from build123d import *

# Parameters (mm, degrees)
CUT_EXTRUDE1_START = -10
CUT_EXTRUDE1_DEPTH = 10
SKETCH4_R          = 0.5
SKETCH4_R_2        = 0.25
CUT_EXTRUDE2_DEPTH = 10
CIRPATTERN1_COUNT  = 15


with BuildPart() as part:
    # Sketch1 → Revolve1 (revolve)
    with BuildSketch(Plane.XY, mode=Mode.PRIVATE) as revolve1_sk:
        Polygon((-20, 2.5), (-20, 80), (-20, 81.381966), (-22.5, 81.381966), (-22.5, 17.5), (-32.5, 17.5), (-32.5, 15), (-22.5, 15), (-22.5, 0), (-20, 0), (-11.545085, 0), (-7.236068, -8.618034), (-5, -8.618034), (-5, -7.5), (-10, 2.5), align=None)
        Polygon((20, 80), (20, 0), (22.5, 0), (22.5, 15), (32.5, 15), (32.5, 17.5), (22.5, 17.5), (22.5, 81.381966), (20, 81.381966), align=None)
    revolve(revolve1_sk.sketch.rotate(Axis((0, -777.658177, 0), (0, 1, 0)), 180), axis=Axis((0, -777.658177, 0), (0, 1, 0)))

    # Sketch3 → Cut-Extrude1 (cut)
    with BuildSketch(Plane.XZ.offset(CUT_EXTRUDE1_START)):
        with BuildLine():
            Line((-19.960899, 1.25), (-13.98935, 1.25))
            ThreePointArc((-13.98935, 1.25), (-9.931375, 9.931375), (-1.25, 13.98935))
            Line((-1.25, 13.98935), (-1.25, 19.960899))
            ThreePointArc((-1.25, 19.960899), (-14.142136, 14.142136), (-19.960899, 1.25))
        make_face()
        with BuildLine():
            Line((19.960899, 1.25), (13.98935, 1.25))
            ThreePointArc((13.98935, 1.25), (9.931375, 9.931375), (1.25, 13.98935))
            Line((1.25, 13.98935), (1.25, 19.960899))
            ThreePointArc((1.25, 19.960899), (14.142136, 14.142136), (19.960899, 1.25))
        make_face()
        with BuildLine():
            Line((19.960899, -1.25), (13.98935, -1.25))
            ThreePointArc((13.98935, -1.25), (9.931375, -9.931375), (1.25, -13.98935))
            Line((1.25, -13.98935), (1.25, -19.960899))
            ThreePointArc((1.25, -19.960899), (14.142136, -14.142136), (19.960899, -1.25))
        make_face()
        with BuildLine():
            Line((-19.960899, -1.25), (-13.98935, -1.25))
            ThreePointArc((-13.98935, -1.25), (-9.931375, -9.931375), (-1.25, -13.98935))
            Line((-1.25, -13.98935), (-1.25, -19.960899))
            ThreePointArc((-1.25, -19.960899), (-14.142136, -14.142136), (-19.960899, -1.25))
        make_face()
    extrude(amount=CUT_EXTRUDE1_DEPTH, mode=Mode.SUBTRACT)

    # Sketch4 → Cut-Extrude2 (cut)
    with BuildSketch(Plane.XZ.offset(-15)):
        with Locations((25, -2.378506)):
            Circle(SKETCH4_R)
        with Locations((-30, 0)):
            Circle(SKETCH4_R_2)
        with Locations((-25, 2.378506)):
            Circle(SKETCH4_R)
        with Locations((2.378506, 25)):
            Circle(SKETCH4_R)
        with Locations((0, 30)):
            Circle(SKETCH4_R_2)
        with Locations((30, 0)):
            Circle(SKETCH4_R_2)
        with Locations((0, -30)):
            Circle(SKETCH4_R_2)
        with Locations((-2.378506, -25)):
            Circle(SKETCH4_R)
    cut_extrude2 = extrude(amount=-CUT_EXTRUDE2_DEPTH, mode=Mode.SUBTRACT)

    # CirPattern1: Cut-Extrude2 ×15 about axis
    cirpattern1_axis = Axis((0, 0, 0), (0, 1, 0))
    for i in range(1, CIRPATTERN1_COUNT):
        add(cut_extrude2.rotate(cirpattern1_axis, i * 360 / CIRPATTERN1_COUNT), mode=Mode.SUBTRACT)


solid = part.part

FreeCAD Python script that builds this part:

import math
import FreeCAD as App
import Part
import Sketcher
Q = App.Units.Quantity

doc = App.newDocument("Part")
body = doc.addObject("PartDesign::Body", "Body")

# Sketch on XY plane
sketch1 = doc.addObject("Sketcher::SketchObject", "Sketch")
body.addObject(sketch1)
sketch1.AttachmentSupport = (doc.XY_Plane, [""])
sketch1.MapMode = "FlatFace"
sketch1.addGeometry([
    Part.LineSegment(App.Vector(-20, 2.5, 0), App.Vector(-20, 81.4, 0)),  # 0
    Part.LineSegment(App.Vector(-20, 81.4, 0), App.Vector(-22.5, 81.4, 0)),  # 1
    Part.LineSegment(App.Vector(-22.5, 81.4, 0), App.Vector(-22.5, 17.5, 0)),  # 2
    Part.LineSegment(App.Vector(-22.5, 17.5, 0), App.Vector(-32.5, 17.5, 0)),  # 3
    Part.LineSegment(App.Vector(-32.5, 17.5, 0), App.Vector(-32.5, 15, 0)),  # 4
    Part.LineSegment(App.Vector(-32.5, 15, 0), App.Vector(-22.5, 15, 0)),  # 5
    Part.LineSegment(App.Vector(-22.5, 15, 0), App.Vector(-22.5, 0, 0)),  # 6
    Part.LineSegment(App.Vector(-22.5, 0, 0), App.Vector(-11.5, 0, 0)),  # 7
    Part.LineSegment(App.Vector(-11.5, 0, 0), App.Vector(-7.2, -8.6, 0)),  # 8
    Part.LineSegment(App.Vector(-7.2, -8.6, 0), App.Vector(-5, -8.6, 0)),  # 9
    Part.LineSegment(App.Vector(-5, -8.6, 0), App.Vector(-5, -7.5, 0)),  # 10
    Part.LineSegment(App.Vector(-5, -7.5, 0), App.Vector(-10, 2.5, 0)),  # 11
    Part.LineSegment(App.Vector(-10, 2.5, 0), App.Vector(-20, 2.5, 0)),  # 12
    Part.LineSegment(App.Vector(20, 0, 0), App.Vector(22.5, 0, 0)),  # 13
    Part.LineSegment(App.Vector(22.5, 0, 0), App.Vector(22.5, 15, 0)),  # 14
    Part.LineSegment(App.Vector(22.5, 15, 0), App.Vector(32.5, 15, 0)),  # 15
    Part.LineSegment(App.Vector(32.5, 15, 0), App.Vector(32.5, 17.5, 0)),  # 16
    Part.LineSegment(App.Vector(32.5, 17.5, 0), App.Vector(22.5, 17.5, 0)),  # 17
    Part.LineSegment(App.Vector(22.5, 17.5, 0), App.Vector(22.5, 81.4, 0)),  # 18
    Part.LineSegment(App.Vector(22.5, 81.4, 0), App.Vector(20, 81.4, 0)),  # 19
    Part.LineSegment(App.Vector(20, 81.4, 0), App.Vector(20, 0, 0)),  # 20
], False)
sketch1.addConstraint([
    Sketcher.Constraint("Coincident", 0, 2, 1, 1),
    Sketcher.Constraint("Coincident", 1, 2, 2, 1),
    Sketcher.Constraint("Coincident", 2, 2, 3, 1),
    Sketcher.Constraint("Coincident", 3, 2, 4, 1),
    Sketcher.Constraint("Coincident", 4, 2, 5, 1),
    Sketcher.Constraint("Coincident", 5, 2, 6, 1),
    Sketcher.Constraint("Coincident", 6, 2, 7, 1),
    Sketcher.Constraint("Coincident", 7, 2, 8, 1),
    Sketcher.Constraint("Coincident", 8, 2, 9, 1),
    Sketcher.Constraint("Coincident", 9, 2, 10, 1),
    Sketcher.Constraint("Coincident", 10, 2, 11, 1),
    Sketcher.Constraint("Coincident", 11, 2, 12, 1),
    Sketcher.Constraint("Coincident", 12, 2, 0, 1),
    Sketcher.Constraint("Coincident", 13, 2, 14, 1),
    Sketcher.Constraint("Coincident", 14, 2, 15, 1),
    Sketcher.Constraint("Coincident", 15, 2, 16, 1),
    Sketcher.Constraint("Coincident", 16, 2, 17, 1),
    Sketcher.Constraint("Coincident", 17, 2, 18, 1),
    Sketcher.Constraint("Coincident", 18, 2, 19, 1),
    Sketcher.Constraint("Coincident", 19, 2, 20, 1),
    Sketcher.Constraint("Coincident", 20, 2, 13, 1),
    Sketcher.Constraint("Vertical", 0),
    Sketcher.Constraint("Horizontal", 1),
    Sketcher.Constraint("Vertical", 2),
    Sketcher.Constraint("Horizontal", 3),
    Sketcher.Constraint("Vertical", 4),
    Sketcher.Constraint("Horizontal", 5),
    Sketcher.Constraint("Vertical", 6),
    Sketcher.Constraint("Horizontal", 7),
    Sketcher.Constraint("Horizontal", 9),
    Sketcher.Constraint("Vertical", 10),
    Sketcher.Constraint("Horizontal", 12),
    Sketcher.Constraint("Horizontal", 13),
    Sketcher.Constraint("Vertical", 14),
    Sketcher.Constraint("Horizontal", 15),
    Sketcher.Constraint("Vertical", 16),
    Sketcher.Constraint("Horizontal", 17),
    Sketcher.Constraint("Vertical", 18),
    Sketcher.Constraint("Horizontal", 19),
    Sketcher.Constraint("Vertical", 20),
    Sketcher.Constraint("Symmetric", 6, 2, 13, 2, -1, 1),
    Sketcher.Constraint("Symmetric", 4, 2, 15, 2, -2),
    Sketcher.Constraint("Symmetric", 2, 2, 17, 2, -2),
    Sketcher.Constraint("Symmetric", 0, 2, 19, 2, -2),
    Sketcher.Constraint("PointOnObject", 6, 2, -1),
    Sketcher.Constraint("Parallel", 8, 11),
    Sketcher.Constraint("Vertical", 2, 2, 5, 2),
    Sketcher.Constraint("Equal", 5, 12),
    Sketcher.Constraint("Equal", 19, 4),
    Sketcher.Constraint("DistanceX", 3, 2, 3, 1, Q("10 mm")),
    Sketcher.Constraint("DistanceY", 6, 2, 6, 1, Q("15 mm")),
    Sketcher.Constraint("DistanceX", 1, 2, 1, 1, Q("2.5 mm")),
    Sketcher.Constraint("DistanceX", 0, 2, -1, 1, Q("20 mm")),
    Sketcher.Constraint("DistanceX", 9, 2, -1, 1, Q("5 mm")),
    Sketcher.Constraint("DistanceY", 10, 2, 11, 2, Q("10 mm")),
    Sketcher.Constraint("DistanceY", 12, 2, 2, 2, Q("15 mm")),
    Sketcher.Constraint("DistanceX", 9, 1, 9, 2, Q("2.236068 mm")),
    Sketcher.Constraint("DistanceX", 7, 1, 7, 2, Q("10.954915 mm")),
    Sketcher.Constraint("DistanceY", 0, 1, 0, 2, Q("78.881966 mm")),
])
revolution = doc.addObject("PartDesign::Revolution", "Revolution")
body.addObject(revolution)
revolution.Profile = sketch1
revolution.ReferenceAxis = (sketch1, ["V_Axis"])
revolution.Angle = 360

# Sketch on XZ plane
sketch2 = doc.addObject("Sketcher::SketchObject", "Sketch001")
body.addObject(sketch2)
sketch2.AttachmentSupport = (doc.XZ_Plane, [""])
sketch2.MapMode = "FlatFace"
sketch2.AttachmentOffset = App.Placement(App.Vector(0, 0, -10), App.Rotation())
sketch2.addGeometry([
    Part.LineSegment(App.Vector(-20, 1, 0), App.Vector(-14, 1, 0)),  # 0
    Part.ArcOfCircle(Part.Circle(App.Vector(0, 0, 0), App.Vector(0, 0, 1), 14), math.radians(95), math.radians(175)),  # 1
    Part.LineSegment(App.Vector(-1, 14, 0), App.Vector(-1, 20, 0)),  # 2
    Part.ArcOfCircle(Part.Circle(App.Vector(0, 0, 0), App.Vector(0, 0, 1), 20), math.radians(94), math.radians(176)),  # 3
    Part.LineSegment(App.Vector(14, 1, 0), App.Vector(20, 1, 0)),  # 4
    Part.ArcOfCircle(Part.Circle(App.Vector(0, 0, 0), App.Vector(0, 0, 1), 20), math.radians(4), math.radians(86)),  # 5
    Part.LineSegment(App.Vector(1, 20, 0), App.Vector(1, 14, 0)),  # 6
    Part.ArcOfCircle(Part.Circle(App.Vector(0, 0, 0), App.Vector(0, 0, 1), 14), math.radians(5), math.radians(85)),  # 7
    Part.LineSegment(App.Vector(20, -1, 0), App.Vector(14, -1, 0)),  # 8
    Part.ArcOfCircle(Part.Circle(App.Vector(0, 0, 0), App.Vector(0, 0, 1), 14), math.radians(-85), math.radians(-5)),  # 9
    Part.LineSegment(App.Vector(1, -14, 0), App.Vector(1, -20, 0)),  # 10
    Part.ArcOfCircle(Part.Circle(App.Vector(0, 0, 0), App.Vector(0, 0, 1), 20), math.radians(-86), math.radians(-4)),  # 11
    Part.LineSegment(App.Vector(-14, -1, 0), App.Vector(-20, -1, 0)),  # 12
    Part.ArcOfCircle(Part.Circle(App.Vector(0, 0, 0), App.Vector(0, 0, 1), 20), math.radians(-176), math.radians(-94)),  # 13
    Part.LineSegment(App.Vector(-1, -20, 0), App.Vector(-1, -14, 0)),  # 14
    Part.ArcOfCircle(Part.Circle(App.Vector(0, 0, 0), App.Vector(0, 0, 1), 14), math.radians(-175), math.radians(-95)),  # 15
], False)
sketch2.addConstraint([
    Sketcher.Constraint("Coincident", 0, 2, 1, 2),
    Sketcher.Constraint("Coincident", 1, 1, 2, 1),
    Sketcher.Constraint("Coincident", 2, 2, 3, 1),
    Sketcher.Constraint("Coincident", 3, 2, 0, 1),
    Sketcher.Constraint("Coincident", 4, 2, 5, 1),
    Sketcher.Constraint("Coincident", 5, 2, 6, 1),
    Sketcher.Constraint("Coincident", 6, 2, 7, 2),
    Sketcher.Constraint("Coincident", 7, 1, 4, 1),
    Sketcher.Constraint("Coincident", 8, 2, 9, 2),
    Sketcher.Constraint("Coincident", 9, 1, 10, 1),
    Sketcher.Constraint("Coincident", 10, 2, 11, 1),
    Sketcher.Constraint("Coincident", 11, 2, 8, 1),
    Sketcher.Constraint("Coincident", 12, 2, 13, 1),
    Sketcher.Constraint("Coincident", 13, 2, 14, 1),
    Sketcher.Constraint("Coincident", 14, 2, 15, 2),
    Sketcher.Constraint("Coincident", 15, 1, 12, 1),
    Sketcher.Constraint("Horizontal", 0),
    Sketcher.Constraint("Vertical", 2),
    Sketcher.Constraint("Horizontal", 4),
    Sketcher.Constraint("Vertical", 6),
    Sketcher.Constraint("Horizontal", 8),
    Sketcher.Constraint("Vertical", 10),
    Sketcher.Constraint("Horizontal", 12),
    Sketcher.Constraint("Vertical", 14),
    Sketcher.Constraint("Coincident", 1, 3, -1, 1),
    Sketcher.Constraint("Coincident", 3, 3, -1, 1),
    Sketcher.Constraint("Coincident", 5, 3, -1, 1),
    Sketcher.Constraint("Coincident", 7, 3, -1, 1),
    Sketcher.Constraint("Coincident", 9, 3, -1, 1),
    Sketcher.Constraint("Coincident", 11, 3, -1, 1),
    Sketcher.Constraint("Coincident", 13, 3, -1, 1),
    Sketcher.Constraint("Coincident", 15, 3, -1, 1),
    Sketcher.Constraint("Equal", 3, 5),
    Sketcher.Constraint("Equal", 1, 7),
    Sketcher.Constraint("Equal", 7, 9),
    Sketcher.Constraint("Equal", 5, 11),
    Sketcher.Constraint("Equal", 11, 13),
    Sketcher.Constraint("Equal", 9, 15),
    Sketcher.Constraint("Horizontal", 3, 2, 4, 2),
    Sketcher.Constraint("Horizontal", 2, 2, 5, 2),
    Sketcher.Constraint("Horizontal", 11, 2, 12, 2),
    Sketcher.Constraint("Horizontal", 10, 2, 13, 2),
    Sketcher.Constraint("Vertical", 7, 1, 8, 2),
    Sketcher.Constraint("Vertical", 6, 2, 9, 1),
    Sketcher.Constraint("Equal", 12, 2),
    Sketcher.Constraint("DistanceX", 2, 2, 5, 2, Q("2.5 mm")),
    Sketcher.Constraint("Radius", 1, Q("14.045084 mm")),
    Sketcher.Constraint("Radius", 3, Q("19.999997 mm")),
])
pocket1 = doc.addObject("PartDesign::Pocket", "Pocket")
body.addObject(pocket1)
pocket1.Profile = sketch2
pocket1.Length = 10
pocket1.Reversed = True

# Sketch on XZ plane
sketch3 = doc.addObject("Sketcher::SketchObject", "Sketch002")
body.addObject(sketch3)
sketch3.AttachmentSupport = (doc.XZ_Plane, [""])
sketch3.MapMode = "FlatFace"
sketch3.AttachmentOffset = App.Placement(App.Vector(0, 0, -15), App.Rotation())
sketch3.addGeometry([
    Part.Circle(App.Vector(25, -2.38, 0), App.Vector(0, 0, 1), 0.5),  # 0
    Part.Circle(App.Vector(-30, 0, 0), App.Vector(0, 0, 1), 0.25),  # 1
    Part.Circle(App.Vector(-25, 2.38, 0), App.Vector(0, 0, 1), 0.5),  # 2
    Part.Circle(App.Vector(2.38, 25, 0), App.Vector(0, 0, 1), 0.5),  # 3
    Part.Circle(App.Vector(0, 30, 0), App.Vector(0, 0, 1), 0.25),  # 4
    Part.Circle(App.Vector(30, 0, 0), App.Vector(0, 0, 1), 0.25),  # 5
    Part.Circle(App.Vector(0, -30, 0), App.Vector(0, 0, 1), 0.25),  # 6
    Part.Circle(App.Vector(-2.38, -25, 0), App.Vector(0, 0, 1), 0.5),  # 7
], False)
sketch3.addConstraint([
    Sketcher.Constraint("Equal", 0, 2),
    Sketcher.Constraint("Equal", 2, 3),
    Sketcher.Constraint("Equal", 1, 4),
    Sketcher.Constraint("Equal", 4, 5),
    Sketcher.Constraint("Equal", 5, 6),
    Sketcher.Constraint("Equal", 3, 7),
    Sketcher.Constraint("Symmetric", 0, 3, 2, 3, -1, 1),
    Sketcher.Constraint("Symmetric", 1, 3, 5, 3, -1, 1),
    Sketcher.Constraint("Symmetric", 4, 3, 6, 3, -1, 1),
    Sketcher.Constraint("Symmetric", 3, 3, 7, 3, -1, 1),
    Sketcher.Constraint("PointOnObject", 1, 3, -1),
    Sketcher.Constraint("PointOnObject", 4, 3, -2),
    Sketcher.Constraint("Diameter", 0, Q("1 mm")),
    Sketcher.Constraint("Diameter", 1, Q("0.5 mm")),
    Sketcher.Constraint("DistanceX", -1, 1, 0, 3, Q("25 mm")),
    Sketcher.Constraint("DistanceX", 1, 3, -1, 1, Q("30 mm")),
    Sketcher.Constraint("DistanceY", -1, 1, 3, 3, Q("25 mm")),
    Sketcher.Constraint("DistanceY", -1, 1, 4, 3, Q("30 mm")),
    Sketcher.Constraint("DistanceY", 0, 3, 2, 3, Q("4.757012 mm")),
    Sketcher.Constraint("DistanceX", -1, 1, 3, 3, Q("2.378506 mm")),
])
pocket2 = doc.addObject("PartDesign::Pocket", "Pocket001")
body.addObject(pocket2)
pocket2.Profile = sketch3
pocket2.Length = 10
doc.recompute()

polarpattern = doc.addObject("PartDesign::PolarPattern", "PolarPattern")
body.addObject(polarpattern)
polarpattern.Originals = [pocket2]
polarpattern.Axis = (doc.Y_Axis, [""])
polarpattern.Angle = 360
polarpattern.Occurrences = 15
body.Tip = polarpattern

doc.recompute()
